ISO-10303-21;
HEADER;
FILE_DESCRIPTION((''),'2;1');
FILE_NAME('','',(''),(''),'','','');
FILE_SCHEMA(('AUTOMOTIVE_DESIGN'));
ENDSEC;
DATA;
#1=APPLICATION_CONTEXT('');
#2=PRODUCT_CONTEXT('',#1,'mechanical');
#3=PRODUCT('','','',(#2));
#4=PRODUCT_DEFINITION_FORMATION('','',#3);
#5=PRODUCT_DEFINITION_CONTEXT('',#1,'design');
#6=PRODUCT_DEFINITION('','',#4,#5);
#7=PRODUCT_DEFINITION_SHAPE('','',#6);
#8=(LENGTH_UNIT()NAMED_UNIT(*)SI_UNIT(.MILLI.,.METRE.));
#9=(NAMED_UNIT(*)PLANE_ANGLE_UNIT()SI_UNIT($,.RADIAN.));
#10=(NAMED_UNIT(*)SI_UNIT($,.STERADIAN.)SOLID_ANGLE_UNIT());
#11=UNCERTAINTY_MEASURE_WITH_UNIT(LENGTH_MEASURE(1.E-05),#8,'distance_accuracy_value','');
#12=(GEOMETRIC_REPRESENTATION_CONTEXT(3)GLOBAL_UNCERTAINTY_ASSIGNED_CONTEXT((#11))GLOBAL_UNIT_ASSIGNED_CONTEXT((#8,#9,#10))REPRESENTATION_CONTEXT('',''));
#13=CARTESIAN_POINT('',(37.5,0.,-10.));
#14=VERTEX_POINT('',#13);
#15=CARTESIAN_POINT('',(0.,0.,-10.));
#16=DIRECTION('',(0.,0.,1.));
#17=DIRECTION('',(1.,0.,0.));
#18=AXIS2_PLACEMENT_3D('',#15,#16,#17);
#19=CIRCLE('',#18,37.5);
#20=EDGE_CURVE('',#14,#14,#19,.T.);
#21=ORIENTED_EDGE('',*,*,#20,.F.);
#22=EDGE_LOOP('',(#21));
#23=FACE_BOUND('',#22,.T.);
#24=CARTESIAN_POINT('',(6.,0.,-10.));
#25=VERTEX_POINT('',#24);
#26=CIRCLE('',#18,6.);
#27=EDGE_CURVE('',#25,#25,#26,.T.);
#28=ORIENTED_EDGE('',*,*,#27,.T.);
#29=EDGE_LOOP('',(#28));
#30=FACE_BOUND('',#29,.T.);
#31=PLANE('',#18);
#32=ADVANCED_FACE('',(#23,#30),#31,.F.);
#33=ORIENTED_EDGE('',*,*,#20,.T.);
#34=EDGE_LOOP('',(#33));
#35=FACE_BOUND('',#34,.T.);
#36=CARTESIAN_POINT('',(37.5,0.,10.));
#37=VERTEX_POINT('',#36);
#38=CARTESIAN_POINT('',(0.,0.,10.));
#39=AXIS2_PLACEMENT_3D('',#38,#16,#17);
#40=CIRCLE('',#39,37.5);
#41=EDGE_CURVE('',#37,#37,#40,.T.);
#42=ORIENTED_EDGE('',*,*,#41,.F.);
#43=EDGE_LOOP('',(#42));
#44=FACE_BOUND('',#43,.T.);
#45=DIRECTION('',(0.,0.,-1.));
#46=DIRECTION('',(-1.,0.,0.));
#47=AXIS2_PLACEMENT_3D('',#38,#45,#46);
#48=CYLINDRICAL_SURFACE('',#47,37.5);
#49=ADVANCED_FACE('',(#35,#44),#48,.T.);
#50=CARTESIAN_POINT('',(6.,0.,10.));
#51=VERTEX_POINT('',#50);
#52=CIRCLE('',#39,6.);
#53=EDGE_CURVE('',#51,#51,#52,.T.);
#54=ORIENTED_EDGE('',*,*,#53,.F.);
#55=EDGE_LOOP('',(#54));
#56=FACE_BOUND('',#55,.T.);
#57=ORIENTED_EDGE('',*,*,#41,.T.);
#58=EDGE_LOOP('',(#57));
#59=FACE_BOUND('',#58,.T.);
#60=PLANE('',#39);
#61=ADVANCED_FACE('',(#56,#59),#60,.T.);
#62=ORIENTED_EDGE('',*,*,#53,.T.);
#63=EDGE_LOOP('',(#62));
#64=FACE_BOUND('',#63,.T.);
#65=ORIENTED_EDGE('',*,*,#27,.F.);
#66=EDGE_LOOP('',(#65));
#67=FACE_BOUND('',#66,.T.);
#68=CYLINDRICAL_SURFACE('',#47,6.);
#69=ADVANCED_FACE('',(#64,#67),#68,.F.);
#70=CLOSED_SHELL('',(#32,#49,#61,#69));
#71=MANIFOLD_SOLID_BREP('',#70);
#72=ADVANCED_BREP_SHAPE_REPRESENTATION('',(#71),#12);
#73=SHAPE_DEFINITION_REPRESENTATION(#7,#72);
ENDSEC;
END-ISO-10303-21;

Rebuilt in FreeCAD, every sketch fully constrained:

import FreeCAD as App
import Part
import Sketcher

V = App.Vector

doc = App.newDocument("Part")
params = doc.addObject("Spreadsheet::Sheet", "Params")
for row, (alias, value) in enumerate([
    ("sketch1_diameter", "75 mm"),
    ("sketch1_diameter2", "12 mm"),
    ("pad1_length", "20 mm"),
], start=1):
    params.set(f"A{row}", alias)
    params.set(f"B{row}", "=" + value)
    params.setAlias(f"B{row}", alias)

body = doc.addObject("PartDesign::Body", "Body")

# Sketch on XY plane
sketch1 = body.newObject("Sketcher::SketchObject", "Sketch")
sketch1.AttachmentSupport = (doc.getObject("XY_Plane"), [""])
sketch1.MapMode = "FlatFace"
sketch1.addGeometry(Part.Circle(V(0, 0, 0), V(0, 0, 1), 38), False)
sketch1.addGeometry(Part.Circle(V(0, 0, 0), V(0, 0, 1), 6), False)
sketch1.addConstraint(Sketcher.Constraint("Coincident", 0, 3, -1, 1))
sketch1.addConstraint(Sketcher.Constraint("Coincident", 1, 3, -1, 1))
sketch1.addConstraint(Sketcher.Constraint("Diameter", 0, 75.0))
sketch1.addConstraint(Sketcher.Constraint("Diameter", 1, 12.0))
sketch1.setExpression("Constraints[2]", "Params.sketch1_diameter")
sketch1.setExpression("Constraints[3]", "Params.sketch1_diameter2")
pad1 = body.newObject("PartDesign::Pad", "Pad")
pad1.Profile = sketch1
pad1.setExpression("Length", "Params.pad1_length")
pad1.Midplane = True

doc.recompute()
